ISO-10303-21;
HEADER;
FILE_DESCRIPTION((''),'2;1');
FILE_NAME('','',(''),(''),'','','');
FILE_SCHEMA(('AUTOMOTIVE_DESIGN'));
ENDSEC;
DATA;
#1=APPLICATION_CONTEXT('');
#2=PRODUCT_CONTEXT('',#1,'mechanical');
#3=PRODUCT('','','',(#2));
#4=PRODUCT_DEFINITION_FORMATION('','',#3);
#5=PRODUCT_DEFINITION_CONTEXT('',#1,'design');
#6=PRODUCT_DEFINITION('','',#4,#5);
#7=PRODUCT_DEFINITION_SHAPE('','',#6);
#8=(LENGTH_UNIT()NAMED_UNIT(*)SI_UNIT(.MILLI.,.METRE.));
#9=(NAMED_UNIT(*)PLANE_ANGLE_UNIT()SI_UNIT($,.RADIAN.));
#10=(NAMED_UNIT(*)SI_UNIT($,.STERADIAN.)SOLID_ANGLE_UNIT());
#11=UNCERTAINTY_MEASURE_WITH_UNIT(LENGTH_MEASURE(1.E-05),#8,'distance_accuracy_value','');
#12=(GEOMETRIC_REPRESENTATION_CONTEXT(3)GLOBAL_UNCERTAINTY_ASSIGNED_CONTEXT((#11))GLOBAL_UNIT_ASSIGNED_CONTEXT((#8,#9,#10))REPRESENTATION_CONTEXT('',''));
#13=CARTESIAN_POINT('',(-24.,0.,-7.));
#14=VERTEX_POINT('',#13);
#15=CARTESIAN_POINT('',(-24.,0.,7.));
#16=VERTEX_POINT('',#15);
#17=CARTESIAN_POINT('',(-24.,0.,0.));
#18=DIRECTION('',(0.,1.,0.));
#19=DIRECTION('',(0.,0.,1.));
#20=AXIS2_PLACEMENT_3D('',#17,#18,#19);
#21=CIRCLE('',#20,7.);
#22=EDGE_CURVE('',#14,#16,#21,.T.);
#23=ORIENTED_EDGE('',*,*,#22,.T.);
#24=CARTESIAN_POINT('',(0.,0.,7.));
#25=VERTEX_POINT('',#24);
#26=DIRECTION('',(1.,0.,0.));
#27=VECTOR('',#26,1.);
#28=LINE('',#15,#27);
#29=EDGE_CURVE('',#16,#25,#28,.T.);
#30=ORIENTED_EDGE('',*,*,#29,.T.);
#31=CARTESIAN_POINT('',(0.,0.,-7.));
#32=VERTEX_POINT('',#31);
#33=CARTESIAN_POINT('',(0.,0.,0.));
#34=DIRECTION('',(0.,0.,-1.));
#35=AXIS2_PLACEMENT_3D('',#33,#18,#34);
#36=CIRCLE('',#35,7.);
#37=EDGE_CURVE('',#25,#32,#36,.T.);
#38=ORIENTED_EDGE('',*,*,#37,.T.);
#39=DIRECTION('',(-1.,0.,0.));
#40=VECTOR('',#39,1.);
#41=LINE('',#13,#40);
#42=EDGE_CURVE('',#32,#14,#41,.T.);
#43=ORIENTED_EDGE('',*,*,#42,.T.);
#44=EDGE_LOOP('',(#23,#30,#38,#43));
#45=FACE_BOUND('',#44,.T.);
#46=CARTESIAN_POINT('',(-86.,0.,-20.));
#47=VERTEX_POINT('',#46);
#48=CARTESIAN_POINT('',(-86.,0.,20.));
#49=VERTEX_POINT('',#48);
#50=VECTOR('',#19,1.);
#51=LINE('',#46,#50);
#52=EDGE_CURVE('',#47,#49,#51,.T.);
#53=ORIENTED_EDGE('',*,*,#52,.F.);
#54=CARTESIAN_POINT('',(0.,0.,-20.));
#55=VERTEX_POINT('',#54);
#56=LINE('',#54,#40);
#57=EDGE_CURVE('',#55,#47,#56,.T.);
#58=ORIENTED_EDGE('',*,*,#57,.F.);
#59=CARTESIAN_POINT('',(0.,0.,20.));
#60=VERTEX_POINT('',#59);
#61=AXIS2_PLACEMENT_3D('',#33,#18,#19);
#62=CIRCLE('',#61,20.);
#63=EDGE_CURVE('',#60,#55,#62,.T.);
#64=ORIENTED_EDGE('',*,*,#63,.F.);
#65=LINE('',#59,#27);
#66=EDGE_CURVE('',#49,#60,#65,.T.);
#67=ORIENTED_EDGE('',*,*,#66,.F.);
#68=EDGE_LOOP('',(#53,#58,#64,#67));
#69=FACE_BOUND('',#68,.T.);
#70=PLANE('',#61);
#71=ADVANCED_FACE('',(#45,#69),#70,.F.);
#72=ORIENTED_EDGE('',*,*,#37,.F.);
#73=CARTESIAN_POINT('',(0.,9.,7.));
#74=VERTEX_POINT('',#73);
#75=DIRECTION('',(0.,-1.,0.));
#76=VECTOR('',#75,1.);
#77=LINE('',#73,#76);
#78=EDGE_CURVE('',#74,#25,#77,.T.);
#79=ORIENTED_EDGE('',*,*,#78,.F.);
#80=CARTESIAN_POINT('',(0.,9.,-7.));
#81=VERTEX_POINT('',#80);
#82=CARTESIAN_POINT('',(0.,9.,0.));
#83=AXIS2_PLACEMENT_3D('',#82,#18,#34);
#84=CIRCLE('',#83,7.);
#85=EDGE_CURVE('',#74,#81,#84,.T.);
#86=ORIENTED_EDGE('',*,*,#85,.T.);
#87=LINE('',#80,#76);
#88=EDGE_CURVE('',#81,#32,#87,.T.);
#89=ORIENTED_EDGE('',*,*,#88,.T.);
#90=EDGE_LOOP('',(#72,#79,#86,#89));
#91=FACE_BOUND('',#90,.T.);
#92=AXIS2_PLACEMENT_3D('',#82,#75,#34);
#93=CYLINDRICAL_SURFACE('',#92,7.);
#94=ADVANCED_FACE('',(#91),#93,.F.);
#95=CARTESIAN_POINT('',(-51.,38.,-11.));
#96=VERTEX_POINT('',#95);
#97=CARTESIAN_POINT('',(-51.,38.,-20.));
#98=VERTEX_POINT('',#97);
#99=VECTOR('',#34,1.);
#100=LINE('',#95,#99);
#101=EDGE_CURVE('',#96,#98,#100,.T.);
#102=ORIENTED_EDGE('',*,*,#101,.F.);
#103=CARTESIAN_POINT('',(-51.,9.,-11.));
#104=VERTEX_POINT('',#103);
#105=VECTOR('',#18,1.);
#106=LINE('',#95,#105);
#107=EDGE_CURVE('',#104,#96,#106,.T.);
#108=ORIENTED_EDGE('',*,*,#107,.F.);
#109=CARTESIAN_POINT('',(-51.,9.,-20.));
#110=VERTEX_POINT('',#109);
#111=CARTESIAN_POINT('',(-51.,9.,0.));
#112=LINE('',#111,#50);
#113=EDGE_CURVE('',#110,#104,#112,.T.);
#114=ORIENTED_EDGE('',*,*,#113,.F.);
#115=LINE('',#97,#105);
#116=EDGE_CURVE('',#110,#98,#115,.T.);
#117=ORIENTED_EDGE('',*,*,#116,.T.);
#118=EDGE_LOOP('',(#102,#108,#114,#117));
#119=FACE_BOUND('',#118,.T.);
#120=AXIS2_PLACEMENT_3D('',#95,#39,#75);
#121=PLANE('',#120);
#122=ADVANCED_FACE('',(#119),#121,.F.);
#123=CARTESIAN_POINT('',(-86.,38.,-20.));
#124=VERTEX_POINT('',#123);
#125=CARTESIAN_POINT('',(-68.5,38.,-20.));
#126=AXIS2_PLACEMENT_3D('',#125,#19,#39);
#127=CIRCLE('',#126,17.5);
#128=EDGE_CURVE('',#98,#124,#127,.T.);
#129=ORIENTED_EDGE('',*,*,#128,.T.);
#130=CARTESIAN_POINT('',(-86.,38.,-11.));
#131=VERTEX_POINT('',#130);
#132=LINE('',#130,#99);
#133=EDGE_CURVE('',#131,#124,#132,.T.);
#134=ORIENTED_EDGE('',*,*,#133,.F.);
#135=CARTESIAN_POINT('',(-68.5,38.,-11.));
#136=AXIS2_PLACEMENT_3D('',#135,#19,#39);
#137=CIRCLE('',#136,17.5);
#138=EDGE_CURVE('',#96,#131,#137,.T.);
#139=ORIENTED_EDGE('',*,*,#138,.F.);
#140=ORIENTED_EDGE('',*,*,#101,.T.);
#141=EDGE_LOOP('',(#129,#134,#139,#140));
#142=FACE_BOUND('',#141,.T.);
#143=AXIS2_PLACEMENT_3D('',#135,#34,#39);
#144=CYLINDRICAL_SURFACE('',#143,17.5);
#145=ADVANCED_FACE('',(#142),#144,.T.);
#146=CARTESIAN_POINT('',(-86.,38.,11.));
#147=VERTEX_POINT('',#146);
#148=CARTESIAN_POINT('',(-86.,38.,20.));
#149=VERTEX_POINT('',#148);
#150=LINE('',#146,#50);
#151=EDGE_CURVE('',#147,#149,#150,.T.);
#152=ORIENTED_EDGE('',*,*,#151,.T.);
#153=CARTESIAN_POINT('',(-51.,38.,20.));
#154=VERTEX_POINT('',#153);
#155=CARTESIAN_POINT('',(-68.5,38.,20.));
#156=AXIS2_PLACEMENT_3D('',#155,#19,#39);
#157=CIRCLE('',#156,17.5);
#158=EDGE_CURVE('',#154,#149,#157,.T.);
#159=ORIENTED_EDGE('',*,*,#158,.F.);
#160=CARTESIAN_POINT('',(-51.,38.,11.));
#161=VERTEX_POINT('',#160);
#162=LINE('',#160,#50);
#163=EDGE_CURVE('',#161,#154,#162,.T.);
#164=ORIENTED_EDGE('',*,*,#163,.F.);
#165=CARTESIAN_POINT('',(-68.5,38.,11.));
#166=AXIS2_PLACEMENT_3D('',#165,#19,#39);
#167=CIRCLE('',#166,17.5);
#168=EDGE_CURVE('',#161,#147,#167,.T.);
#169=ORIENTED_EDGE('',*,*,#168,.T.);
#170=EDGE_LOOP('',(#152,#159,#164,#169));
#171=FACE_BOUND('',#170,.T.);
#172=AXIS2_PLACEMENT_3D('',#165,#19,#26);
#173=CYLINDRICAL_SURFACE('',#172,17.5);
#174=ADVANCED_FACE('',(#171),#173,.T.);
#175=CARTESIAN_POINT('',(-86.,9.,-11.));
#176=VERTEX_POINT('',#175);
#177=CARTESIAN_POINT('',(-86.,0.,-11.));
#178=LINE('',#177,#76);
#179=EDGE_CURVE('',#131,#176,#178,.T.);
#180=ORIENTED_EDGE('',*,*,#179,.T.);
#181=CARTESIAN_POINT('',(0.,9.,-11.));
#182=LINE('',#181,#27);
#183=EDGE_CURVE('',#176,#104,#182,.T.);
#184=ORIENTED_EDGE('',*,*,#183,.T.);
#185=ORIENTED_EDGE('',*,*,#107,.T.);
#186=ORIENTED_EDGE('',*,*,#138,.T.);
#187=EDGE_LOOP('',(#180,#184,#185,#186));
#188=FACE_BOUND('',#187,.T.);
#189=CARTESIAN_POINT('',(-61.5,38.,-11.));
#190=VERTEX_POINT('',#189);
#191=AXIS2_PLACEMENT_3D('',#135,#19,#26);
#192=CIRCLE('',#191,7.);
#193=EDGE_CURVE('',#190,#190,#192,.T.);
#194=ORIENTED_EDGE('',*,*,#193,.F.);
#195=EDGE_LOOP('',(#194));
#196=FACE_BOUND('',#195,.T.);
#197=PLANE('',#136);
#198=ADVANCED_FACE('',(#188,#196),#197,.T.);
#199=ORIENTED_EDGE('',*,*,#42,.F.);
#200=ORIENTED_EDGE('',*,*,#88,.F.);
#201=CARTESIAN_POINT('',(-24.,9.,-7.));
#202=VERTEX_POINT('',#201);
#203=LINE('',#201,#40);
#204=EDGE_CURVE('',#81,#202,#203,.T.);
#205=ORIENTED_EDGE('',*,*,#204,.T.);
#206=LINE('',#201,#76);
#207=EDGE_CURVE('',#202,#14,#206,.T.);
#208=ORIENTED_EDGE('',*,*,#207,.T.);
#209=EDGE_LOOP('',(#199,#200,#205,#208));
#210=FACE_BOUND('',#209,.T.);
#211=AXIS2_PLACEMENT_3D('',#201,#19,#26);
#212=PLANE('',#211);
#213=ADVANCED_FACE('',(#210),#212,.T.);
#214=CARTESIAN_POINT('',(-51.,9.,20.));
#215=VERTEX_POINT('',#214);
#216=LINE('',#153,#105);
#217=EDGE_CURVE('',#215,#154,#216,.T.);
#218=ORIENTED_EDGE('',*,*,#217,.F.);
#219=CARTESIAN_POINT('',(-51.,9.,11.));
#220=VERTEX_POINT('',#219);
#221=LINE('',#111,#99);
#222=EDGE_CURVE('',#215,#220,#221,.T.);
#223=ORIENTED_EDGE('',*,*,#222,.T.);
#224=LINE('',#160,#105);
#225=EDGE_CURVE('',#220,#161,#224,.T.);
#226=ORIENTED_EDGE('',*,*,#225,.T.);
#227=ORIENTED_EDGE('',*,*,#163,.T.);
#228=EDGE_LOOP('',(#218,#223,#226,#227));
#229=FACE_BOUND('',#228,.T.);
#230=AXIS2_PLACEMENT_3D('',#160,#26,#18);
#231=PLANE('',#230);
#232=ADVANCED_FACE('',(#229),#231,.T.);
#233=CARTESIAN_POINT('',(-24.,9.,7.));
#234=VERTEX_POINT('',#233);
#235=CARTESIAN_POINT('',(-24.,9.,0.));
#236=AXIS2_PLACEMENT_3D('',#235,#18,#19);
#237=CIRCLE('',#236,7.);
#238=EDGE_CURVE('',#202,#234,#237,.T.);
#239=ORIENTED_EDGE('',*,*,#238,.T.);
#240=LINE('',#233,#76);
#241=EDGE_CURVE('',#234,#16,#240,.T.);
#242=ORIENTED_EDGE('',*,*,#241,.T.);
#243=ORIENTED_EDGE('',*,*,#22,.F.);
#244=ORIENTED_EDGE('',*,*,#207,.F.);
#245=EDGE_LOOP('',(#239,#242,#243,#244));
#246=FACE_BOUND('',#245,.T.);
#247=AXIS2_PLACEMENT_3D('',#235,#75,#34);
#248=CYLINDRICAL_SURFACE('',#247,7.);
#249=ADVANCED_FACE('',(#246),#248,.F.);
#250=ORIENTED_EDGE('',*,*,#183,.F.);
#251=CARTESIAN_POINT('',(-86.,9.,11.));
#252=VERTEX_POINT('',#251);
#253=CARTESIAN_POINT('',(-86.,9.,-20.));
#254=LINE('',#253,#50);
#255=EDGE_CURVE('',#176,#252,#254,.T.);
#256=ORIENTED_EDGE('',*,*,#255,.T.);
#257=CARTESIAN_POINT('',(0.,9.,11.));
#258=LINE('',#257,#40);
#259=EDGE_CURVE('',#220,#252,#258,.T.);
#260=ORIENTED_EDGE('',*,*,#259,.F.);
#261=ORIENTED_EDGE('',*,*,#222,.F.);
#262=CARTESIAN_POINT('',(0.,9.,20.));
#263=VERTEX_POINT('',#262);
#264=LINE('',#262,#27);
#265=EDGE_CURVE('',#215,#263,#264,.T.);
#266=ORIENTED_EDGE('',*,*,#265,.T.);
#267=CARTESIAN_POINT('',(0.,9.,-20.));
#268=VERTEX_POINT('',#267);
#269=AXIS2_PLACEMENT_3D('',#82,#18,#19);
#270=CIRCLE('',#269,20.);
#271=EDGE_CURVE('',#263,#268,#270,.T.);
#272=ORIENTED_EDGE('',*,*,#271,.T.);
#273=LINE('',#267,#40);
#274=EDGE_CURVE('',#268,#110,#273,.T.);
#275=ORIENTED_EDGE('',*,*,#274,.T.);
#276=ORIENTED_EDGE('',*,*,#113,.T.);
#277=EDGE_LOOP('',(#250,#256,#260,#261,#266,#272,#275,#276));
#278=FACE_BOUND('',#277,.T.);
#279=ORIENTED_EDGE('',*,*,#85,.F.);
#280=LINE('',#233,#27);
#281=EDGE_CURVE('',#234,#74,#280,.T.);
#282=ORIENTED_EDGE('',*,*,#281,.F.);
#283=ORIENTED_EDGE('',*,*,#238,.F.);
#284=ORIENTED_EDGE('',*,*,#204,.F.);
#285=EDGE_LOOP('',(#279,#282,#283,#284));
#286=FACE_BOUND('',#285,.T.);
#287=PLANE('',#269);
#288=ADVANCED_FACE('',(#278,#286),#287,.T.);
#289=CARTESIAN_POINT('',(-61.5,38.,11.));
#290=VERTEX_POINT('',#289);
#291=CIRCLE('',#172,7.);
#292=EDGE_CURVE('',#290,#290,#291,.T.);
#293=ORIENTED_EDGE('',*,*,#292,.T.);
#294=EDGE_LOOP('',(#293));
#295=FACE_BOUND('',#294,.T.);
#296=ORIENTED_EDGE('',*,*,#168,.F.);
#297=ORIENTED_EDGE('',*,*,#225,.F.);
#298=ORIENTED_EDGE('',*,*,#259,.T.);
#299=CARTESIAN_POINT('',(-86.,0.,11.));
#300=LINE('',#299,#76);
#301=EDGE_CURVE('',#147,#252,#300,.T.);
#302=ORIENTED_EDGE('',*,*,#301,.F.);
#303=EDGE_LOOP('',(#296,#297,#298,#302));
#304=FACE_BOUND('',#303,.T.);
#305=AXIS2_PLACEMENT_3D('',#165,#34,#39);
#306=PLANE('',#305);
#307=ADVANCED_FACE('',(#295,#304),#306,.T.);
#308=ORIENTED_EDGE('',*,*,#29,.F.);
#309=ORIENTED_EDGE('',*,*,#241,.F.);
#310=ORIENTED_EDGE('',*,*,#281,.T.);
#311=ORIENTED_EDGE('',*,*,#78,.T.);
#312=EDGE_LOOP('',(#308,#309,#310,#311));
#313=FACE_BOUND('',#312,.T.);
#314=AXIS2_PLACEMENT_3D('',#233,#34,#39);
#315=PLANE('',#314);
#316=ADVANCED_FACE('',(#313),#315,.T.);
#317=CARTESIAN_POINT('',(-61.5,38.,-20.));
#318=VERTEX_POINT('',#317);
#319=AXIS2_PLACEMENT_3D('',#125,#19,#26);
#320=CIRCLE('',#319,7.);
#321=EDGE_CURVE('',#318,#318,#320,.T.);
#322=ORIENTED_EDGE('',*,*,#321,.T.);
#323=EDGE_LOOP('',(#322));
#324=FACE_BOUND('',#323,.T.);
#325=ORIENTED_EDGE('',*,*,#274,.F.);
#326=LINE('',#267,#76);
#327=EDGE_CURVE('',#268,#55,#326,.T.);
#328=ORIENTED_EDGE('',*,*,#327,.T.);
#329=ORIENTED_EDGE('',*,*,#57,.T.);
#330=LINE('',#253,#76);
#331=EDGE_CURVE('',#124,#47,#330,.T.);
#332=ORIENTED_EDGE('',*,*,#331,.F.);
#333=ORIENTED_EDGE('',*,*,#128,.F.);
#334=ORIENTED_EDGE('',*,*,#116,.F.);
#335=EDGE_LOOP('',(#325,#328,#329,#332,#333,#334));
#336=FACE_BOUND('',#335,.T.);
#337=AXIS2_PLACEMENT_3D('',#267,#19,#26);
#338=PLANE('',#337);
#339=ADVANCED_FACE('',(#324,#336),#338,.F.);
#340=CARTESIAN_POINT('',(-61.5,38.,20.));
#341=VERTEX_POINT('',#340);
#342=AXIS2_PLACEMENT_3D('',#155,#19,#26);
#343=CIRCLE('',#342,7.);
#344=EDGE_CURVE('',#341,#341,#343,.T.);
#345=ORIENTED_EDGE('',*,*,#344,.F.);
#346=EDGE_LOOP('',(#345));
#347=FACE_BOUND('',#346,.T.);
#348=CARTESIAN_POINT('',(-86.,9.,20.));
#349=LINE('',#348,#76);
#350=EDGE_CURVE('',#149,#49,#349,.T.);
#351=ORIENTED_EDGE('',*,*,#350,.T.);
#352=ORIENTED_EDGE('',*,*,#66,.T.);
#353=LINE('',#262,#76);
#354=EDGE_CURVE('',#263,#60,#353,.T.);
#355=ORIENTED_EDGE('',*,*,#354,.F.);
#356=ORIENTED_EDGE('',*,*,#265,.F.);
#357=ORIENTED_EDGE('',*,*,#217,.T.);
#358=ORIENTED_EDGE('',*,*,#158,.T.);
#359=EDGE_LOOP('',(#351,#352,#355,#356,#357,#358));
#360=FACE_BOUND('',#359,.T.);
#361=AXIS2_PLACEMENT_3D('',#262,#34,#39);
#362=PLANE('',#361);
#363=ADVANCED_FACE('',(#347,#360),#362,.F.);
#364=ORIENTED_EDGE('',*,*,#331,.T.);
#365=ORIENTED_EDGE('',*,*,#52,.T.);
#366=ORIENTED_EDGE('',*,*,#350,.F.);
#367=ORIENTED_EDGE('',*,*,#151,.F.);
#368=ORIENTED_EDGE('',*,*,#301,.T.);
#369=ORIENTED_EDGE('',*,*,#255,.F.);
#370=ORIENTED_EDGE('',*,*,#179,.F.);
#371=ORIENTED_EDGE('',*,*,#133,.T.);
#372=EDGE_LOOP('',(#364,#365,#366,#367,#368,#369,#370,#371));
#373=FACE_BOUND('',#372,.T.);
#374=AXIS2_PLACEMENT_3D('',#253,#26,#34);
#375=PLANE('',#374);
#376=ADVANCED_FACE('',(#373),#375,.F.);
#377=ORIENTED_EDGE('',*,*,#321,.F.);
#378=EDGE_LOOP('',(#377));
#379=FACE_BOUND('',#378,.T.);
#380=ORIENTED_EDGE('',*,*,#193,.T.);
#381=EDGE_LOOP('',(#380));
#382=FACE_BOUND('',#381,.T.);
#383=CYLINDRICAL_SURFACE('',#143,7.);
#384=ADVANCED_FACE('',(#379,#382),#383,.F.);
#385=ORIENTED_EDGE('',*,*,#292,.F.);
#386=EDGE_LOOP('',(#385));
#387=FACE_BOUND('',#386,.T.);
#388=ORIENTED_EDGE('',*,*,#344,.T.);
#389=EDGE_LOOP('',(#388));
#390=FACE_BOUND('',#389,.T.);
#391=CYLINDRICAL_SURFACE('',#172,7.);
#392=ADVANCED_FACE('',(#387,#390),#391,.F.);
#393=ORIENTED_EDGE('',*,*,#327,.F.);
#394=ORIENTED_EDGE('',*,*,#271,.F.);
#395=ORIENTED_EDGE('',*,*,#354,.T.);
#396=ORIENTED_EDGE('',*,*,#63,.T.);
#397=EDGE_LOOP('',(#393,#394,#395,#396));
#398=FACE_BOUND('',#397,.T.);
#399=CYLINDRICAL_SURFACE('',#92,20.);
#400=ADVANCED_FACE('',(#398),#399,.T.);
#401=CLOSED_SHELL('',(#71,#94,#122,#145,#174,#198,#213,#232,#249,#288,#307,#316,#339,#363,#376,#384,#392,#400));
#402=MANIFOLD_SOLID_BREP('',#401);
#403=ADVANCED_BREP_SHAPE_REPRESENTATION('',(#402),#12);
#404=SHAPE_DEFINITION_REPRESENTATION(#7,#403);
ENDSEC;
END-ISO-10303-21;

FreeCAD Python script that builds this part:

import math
import FreeCAD as App
import Part
import Sketcher
from FreeCAD import Vector
Q = App.Units.Quantity

doc = App.newDocument("Part")
body = doc.addObject("PartDesign::Body", "Body")

# Sketch on XZ plane
sketch1 = body.newObject("Sketcher::SketchObject", "Sketch")
sketch1.AttachmentSupport = (doc.getObject("XZ_Plane"), [""])
sketch1.MapMode = "FlatFace"
sketch1.addGeometry([
    Part.LineSegment(Vector(-86, 20, 0), Vector(0, 20, 0)),  # 0
    Part.ArcOfCircle(Part.Circle(Vector(0, 0, 0), Vector(0, 0, 1), 20), math.radians(-90), math.radians(90)),  # 1
    Part.LineSegment(Vector(0, -20, 0), Vector(-86, -20, 0)),  # 2
    Part.LineSegment(Vector(-86, -20, 0), Vector(-86, 20, 0)),  # 3
    Part.LineSegment(Vector(-24, -7, 0), Vector(0, -7, 0)),  # 4
    Part.ArcOfCircle(Part.Circle(Vector(0, 0, 0), Vector(0, 0, 1), 7), math.radians(-90), math.radians(90)),  # 5
    Part.LineSegment(Vector(0, 7, 0), Vector(-24, 7, 0)),  # 6
    Part.ArcOfCircle(Part.Circle(Vector(-24, 0, 0), Vector(0, 0, 1), 7), math.radians(90), math.radians(270)),  # 7
], False)
sketch1.addConstraint([
    Sketcher.Constraint("Tangent", 0, 2, 1, 2),
    Sketcher.Constraint("Tangent", 1, 1, 2, 1),
    Sketcher.Constraint("Coincident", 2, 2, 3, 1),
    Sketcher.Constraint("Coincident", 3, 2, 0, 1),
    Sketcher.Constraint("Tangent", 4, 2, 5, 1),
    Sketcher.Constraint("Tangent", 5, 2, 6, 1),
    Sketcher.Constraint("Tangent", 6, 2, 7, 1),
    Sketcher.Constraint("Tangent", 7, 2, 4, 1),
    Sketcher.Constraint("Horizontal", 0),
    Sketcher.Constraint("Horizontal", 2),
    Sketcher.Constraint("Vertical", 3),
    Sketcher.Constraint("Horizontal", 4),
    Sketcher.Constraint("Horizontal", 6),
    Sketcher.Constraint("Coincident", 1, 3, -1, 1),
    Sketcher.Constraint("Coincident", 5, 3, -1, 1),
    Sketcher.Constraint("Radius", 1, Q("20 mm")),
    Sketcher.Constraint("Radius", 5, Q("7 mm")),
    Sketcher.Constraint("DistanceX", 0, 1, 0, 2, Q("86 mm")),
    Sketcher.Constraint("DistanceX", 4, 1, 4, 2, Q("24 mm")),
])
pad1 = body.newObject("PartDesign::Pad", "Pad")
pad1.Profile = sketch1
pad1.Length = 9
pad1.Reversed = True

# Sketch on XY plane
sketch2 = body.newObject("Sketcher::SketchObject", "Sketch001")
sketch2.AttachmentSupport = (doc.getObject("XY_Plane"), [""])
sketch2.MapMode = "FlatFace"
sketch2.AttachmentOffset = App.Placement(Vector(0, 0, 20), App.Rotation())
sketch2.addGeometry([
    Part.LineSegment(Vector(-86, 38, 0), Vector(-86, 0, 0)),  # 0
    Part.LineSegment(Vector(-86, 0, 0), Vector(-51, 0, 0)),  # 1
    Part.LineSegment(Vector(-51, 0, 0), Vector(-51, 38, 0)),  # 2
    Part.ArcOfCircle(Part.Circle(Vector(-68, 38, 0), Vector(0, 0, 1), 18), math.radians(0), math.radians(180)),  # 3
    Part.Circle(Vector(-68, 38, 0), Vector(0, 0, 1), 7),  # 4
], False)
sketch2.addConstraint([
    Sketcher.Constraint("Coincident", 0, 2, 1, 1),
    Sketcher.Constraint("Coincident", 1, 2, 2, 1),
    Sketcher.Constraint("Tangent", 2, 2, 3, 1),
    Sketcher.Constraint("Tangent", 3, 2, 0, 1),
    Sketcher.Constraint("Vertical", 0),
    Sketcher.Constraint("Horizontal", 1),
    Sketcher.Constraint("Vertical", 2),
    Sketcher.Constraint("Coincident", 4, 3, 3, 3),
    Sketcher.Constraint("PointOnObject", 0, 2, -1),
    Sketcher.Constraint("Diameter", 4, Q("14 mm")),
    Sketcher.Constraint("Radius", 3, Q("17.5 mm")),
    Sketcher.Constraint("DistanceY", 0, 2, 0, 1, Q("38 mm")),
    Sketcher.Constraint("DistanceX", 0, 2, -1, 1, Q("86 mm")),
])
pad2 = body.newObject("PartDesign::Pad", "Pad001")
pad2.Profile = sketch2
pad2.Length = 9
pad2.Reversed = True
doc.recompute()

mirrored = body.newObject("PartDesign::Mirrored", "Mirrored")
mirrored.Originals = [pad2]
mirrored.MirrorPlane = (doc.getObject("XY_Plane"), [""])
body.Tip = mirrored

doc.recompute()
